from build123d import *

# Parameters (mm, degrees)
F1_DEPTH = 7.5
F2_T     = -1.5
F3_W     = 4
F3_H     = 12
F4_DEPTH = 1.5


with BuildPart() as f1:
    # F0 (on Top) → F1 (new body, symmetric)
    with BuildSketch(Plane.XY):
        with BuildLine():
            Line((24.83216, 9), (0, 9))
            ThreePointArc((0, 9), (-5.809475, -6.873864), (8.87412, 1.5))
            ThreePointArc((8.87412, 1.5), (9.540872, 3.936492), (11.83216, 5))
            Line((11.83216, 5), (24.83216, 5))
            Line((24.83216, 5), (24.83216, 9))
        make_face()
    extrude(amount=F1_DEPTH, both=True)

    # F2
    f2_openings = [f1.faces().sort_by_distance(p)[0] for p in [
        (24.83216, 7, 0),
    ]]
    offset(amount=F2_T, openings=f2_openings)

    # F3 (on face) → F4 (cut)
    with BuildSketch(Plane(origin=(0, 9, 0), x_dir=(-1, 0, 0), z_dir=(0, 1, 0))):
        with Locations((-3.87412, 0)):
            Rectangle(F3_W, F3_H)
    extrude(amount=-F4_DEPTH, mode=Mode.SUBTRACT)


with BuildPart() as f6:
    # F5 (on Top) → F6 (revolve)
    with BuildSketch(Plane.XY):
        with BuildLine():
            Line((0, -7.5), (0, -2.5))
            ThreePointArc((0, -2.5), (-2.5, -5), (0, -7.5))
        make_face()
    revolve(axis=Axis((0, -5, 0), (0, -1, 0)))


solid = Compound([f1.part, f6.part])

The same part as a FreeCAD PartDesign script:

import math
import FreeCAD as App
import Part
import Sketcher
Q = App.Units.Quantity


def faces_at(feature, points):
    """Names of the faces that lie closest to the given points."""
    faces = feature.Shape.Faces
    near = lambda p: min(range(len(faces)), key=lambda i: faces[i].distToShape(Part.Vertex(*p))[0])
    return sorted({f"Face{near(p) + 1}" for p in points})

doc = App.newDocument("Part")
body = doc.addObject("PartDesign::Body", "Body")

# Sketch on XY plane
sketch1 = body.newObject("Sketcher::SketchObject", "Sketch")
sketch1.AttachmentSupport = (doc.getObject("XY_Plane"), [""])
sketch1.MapMode = "FlatFace"
sketch1.addGeometry([
    Part.LineSegment(App.Vector(24.8, 9, 0), App.Vector(0, 9, 0)),  # 0
    Part.ArcOfCircle(Part.Circle(App.Vector(0, 0, 0), App.Vector(0, 0, 1), 9), math.radians(90), math.radians(370)),  # 1
    Part.ArcOfCircle(Part.Circle(App.Vector(11.8, 2, 0), App.Vector(0, 0, 1), 3), math.radians(90), math.radians(190)),  # 2
    Part.LineSegment(App.Vector(11.8, 5, 0), App.Vector(24.8, 5, 0)),  # 3
    Part.LineSegment(App.Vector(24.8, 5, 0), App.Vector(24.8, 9, 0)),  # 4
], False)
sketch1.addConstraint([
    Sketcher.Constraint("Tangent", 0, 2, 1, 1),
    Sketcher.Constraint("Tangent", 1, 2, 2, 2),
    Sketcher.Constraint("Tangent", 2, 1, 3, 1),
    Sketcher.Constraint("Coincident", 3, 2, 4, 1),
    Sketcher.Constraint("Coincident", 4, 2, 0, 1),
    Sketcher.Constraint("Horizontal", 0),
    Sketcher.Constraint("Horizontal", 3),
    Sketcher.Constraint("Vertical", 4),
    Sketcher.Constraint("Coincident", 1, 3, -1, 1),
    Sketcher.Constraint("Radius", 1, Q("9 mm")),
    Sketcher.Constraint("Radius", 2, Q("3 mm")),
    Sketcher.Constraint("DistanceX", 3, 1, 3, 2, Q("13 mm")),
    Sketcher.Constraint("DistanceY", 4, 1, 4, 2, Q("4 mm")),
])
pad1 = body.newObject("PartDesign::Pad", "Pad")
pad1.Profile = sketch1
pad1.Length = 15
pad1.Midplane = True
doc.recompute()

thickness = body.newObject("PartDesign::Thickness", "Thickness")
thickness.Base = (pad1, faces_at(pad1, [(24.832, 7, 0)]))
thickness.Value = 1.5
thickness.Reversed = True
thickness.Join = "Arc"

# Sketch on XZ plane
sketch2 = body.newObject("Sketcher::SketchObject", "Sketch001")
sketch2.AttachmentSupport = (doc.getObject("XZ_Plane"), [""])
sketch2.MapMode = "FlatFace"
sketch2.AttachmentOffset = App.Placement(App.Vector(0, 0, -9), App.Rotation())
sketch2.addGeometry([
    Part.LineSegment(App.Vector(5.9, 6, 0), App.Vector(5.9, -6, 0)),
    Part.LineSegment(App.Vector(5.9, -6, 0), App.Vector(1.9, -6, 0)),
    Part.LineSegment(App.Vector(1.9, -6, 0), App.Vector(1.9, 6, 0)),
    Part.LineSegment(App.Vector(1.9, 6, 0), App.Vector(5.9, 6, 0)),
], False)
sketch2.addConstraint([
    Sketcher.Constraint("Coincident", 0, 2, 1, 1),
    Sketcher.Constraint("Coincident", 1, 2, 2, 1),
    Sketcher.Constraint("Coincident", 2, 2, 3, 1),
    Sketcher.Constraint("Coincident", 3, 2, 0, 1),
    Sketcher.Constraint("Vertical", 0),
    Sketcher.Constraint("Horizontal", 1),
    Sketcher.Constraint("Vertical", 2),
    Sketcher.Constraint("Horizontal", 3),
    Sketcher.Constraint("DistanceX", 1, 2, 1, 1, Q("4 mm")),
    Sketcher.Constraint("DistanceY", 0, 2, 0, 1, Q("12 mm")),
    Sketcher.Constraint("DistanceY", 0, 2, -1, 1, Q("6 mm")),
    Sketcher.Constraint("DistanceX", -1, 1, 0, 2, Q("5.87412 mm")),
])
pocket1 = body.newObject("PartDesign::Pocket", "Pocket")
pocket1.Profile = sketch2
pocket1.Length = 1.5
pocket1.Reversed = True
body2 = doc.addObject("PartDesign::Body", "Body001")

# Sketch on XY plane
sketch3 = body2.newObject("Sketcher::SketchObject", "Sketch002")
sketch3.AttachmentSupport = (doc.getObject("XY_Plane001"), [""])
sketch3.MapMode = "FlatFace"
sketch3.addGeometry([
    Part.LineSegment(App.Vector(0, -7.5, 0), App.Vector(0, -2.5, 0)),
    Part.ArcOfCircle(Part.Circle(App.Vector(0, -5, 0), App.Vector(0, 0, 1), 2.5), math.radians(90), math.radians(270)),
], False)
sketch3.addConstraint([
    Sketcher.Constraint("Coincident", 0, 1, 1, 2),
    Sketcher.Constraint("Coincident", 1, 1, 0, 2),
    Sketcher.Constraint("Vertical", 0),
    Sketcher.Constraint("PointOnObject", 1, 3, -2),
    Sketcher.Constraint("PointOnObject", 0, 1, -2),
    Sketcher.Constraint("Radius", 1, Q("2.5 mm")),
    Sketcher.Constraint("DistanceY", 1, 3, -1, 1, Q("5 mm")),
])
revolution = body2.newObject("PartDesign::Revolution", "Revolution")
revolution.Profile = sketch3
revolution.ReferenceAxis = (sketch3, ["V_Axis"])
revolution.Angle = 360

doc.recompute()
